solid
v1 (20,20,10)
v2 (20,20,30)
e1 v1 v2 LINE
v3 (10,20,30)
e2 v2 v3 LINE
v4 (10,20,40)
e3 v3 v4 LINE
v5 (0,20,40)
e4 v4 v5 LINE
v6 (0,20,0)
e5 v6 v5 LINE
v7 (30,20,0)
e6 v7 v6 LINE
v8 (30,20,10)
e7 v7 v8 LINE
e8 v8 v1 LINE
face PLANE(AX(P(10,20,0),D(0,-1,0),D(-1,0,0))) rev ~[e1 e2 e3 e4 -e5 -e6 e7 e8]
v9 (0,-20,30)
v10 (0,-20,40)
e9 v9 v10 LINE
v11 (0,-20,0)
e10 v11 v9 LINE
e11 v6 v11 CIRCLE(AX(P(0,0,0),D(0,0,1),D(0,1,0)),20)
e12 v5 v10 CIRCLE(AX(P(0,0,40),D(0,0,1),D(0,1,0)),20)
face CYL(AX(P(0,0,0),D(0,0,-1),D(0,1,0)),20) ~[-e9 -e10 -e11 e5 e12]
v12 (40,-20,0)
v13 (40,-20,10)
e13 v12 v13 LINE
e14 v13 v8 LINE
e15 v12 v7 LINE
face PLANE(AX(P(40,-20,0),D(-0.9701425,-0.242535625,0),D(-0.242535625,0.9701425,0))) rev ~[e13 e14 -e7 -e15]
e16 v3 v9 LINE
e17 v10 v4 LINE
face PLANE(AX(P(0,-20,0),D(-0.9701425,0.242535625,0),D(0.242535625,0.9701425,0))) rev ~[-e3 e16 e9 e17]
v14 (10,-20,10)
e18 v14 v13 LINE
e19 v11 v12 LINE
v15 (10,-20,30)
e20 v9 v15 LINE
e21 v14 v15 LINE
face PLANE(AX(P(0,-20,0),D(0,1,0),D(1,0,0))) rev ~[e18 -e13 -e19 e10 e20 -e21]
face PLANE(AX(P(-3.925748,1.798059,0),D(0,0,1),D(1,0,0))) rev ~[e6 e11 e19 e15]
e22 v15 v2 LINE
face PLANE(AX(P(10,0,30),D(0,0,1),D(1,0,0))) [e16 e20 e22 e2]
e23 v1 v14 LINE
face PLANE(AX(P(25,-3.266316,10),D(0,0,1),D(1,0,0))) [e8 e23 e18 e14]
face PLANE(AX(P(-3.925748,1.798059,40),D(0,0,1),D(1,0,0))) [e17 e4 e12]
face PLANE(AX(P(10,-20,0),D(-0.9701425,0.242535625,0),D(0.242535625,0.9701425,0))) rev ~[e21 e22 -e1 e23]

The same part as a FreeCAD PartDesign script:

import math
import FreeCAD as App
import Part
import Sketcher

V = App.Vector

doc = App.newDocument("Part")
body = doc.addObject("PartDesign::Body", "Body")

sketch1 = body.newObject("Sketcher::SketchObject", "Sketch")
sketch1.AttachmentSupport = (doc.getObject("XY_Plane"), [""])
sketch1.MapMode = "FlatFace"
sketch1.addGeometry([
    Part.LineSegment(V(20, 20, 0), V(10, -20, 0)),
    Part.LineSegment(V(10, -20, 0), V(40, -20, 0)),
    Part.LineSegment(V(40, -20, 0), V(30, 20, 0)),
    Part.LineSegment(V(30, 20, 0), V(20, 20, 0)),
], False)
sketch1.addConstraint([
    Sketcher.Constraint("Coincident", 0, 2, 1, 1),
    Sketcher.Constraint("Coincident", 1, 2, 2, 1),
    Sketcher.Constraint("Coincident", 2, 2, 3, 1),
    Sketcher.Constraint("Coincident", 3, 2, 0, 1),
    Sketcher.Constraint("Horizontal", 1),
    Sketcher.Constraint("Horizontal", 3),
    Sketcher.Constraint("Equal", 0, 2),
    Sketcher.Constraint("DistanceX", 1, 1, 1, 2, 30.0),
    Sketcher.Constraint("DistanceX", 3, 2, 3, 1, 10.0),
    Sketcher.Constraint("DistanceX", -1, 1, 0, 2, 10.0),
    Sketcher.Constraint("DistanceY", 0, 2, -1, 1, 20.0),
    Sketcher.Constraint("DistanceY", -1, 1, 2, 2, 20.0),
])
pad1 = body.newObject("PartDesign::Pad", "Pad")
pad1.Profile = sketch1
pad1.Length = 10

sketch2 = body.newObject("Sketcher::SketchObject", "Sketch001")
sketch2.AttachmentSupport = (doc.getObject("XY_Plane"), [""])
sketch2.MapMode = "FlatFace"
sketch2.addGeometry([
    Part.LineSegment(V(10, 20, 0), V(0, -20, 0)),
    Part.LineSegment(V(0, -20, 0), V(10, -20, 0)),
    Part.LineSegment(V(10, -20, 0), V(20, 20, 0)),
    Part.LineSegment(V(20, 20, 0), V(10, 20, 0)),
], False)
sketch2.addConstraint([
    Sketcher.Constraint("Coincident", 0, 2, 1, 1),
    Sketcher.Constraint("Coincident", 1, 2, 2, 1),
    Sketcher.Constraint("Coincident", 2, 2, 3, 1),
    Sketcher.Constraint("Coincident", 3, 2, 0, 1),
    Sketcher.Constraint("Horizontal", 1),
    Sketcher.Constraint("Horizontal", 3),
    Sketcher.Constraint("Symmetric", 1, 2, 3, 2, -1),
    Sketcher.Constraint("PointOnObject", 0, 2, -2),
    Sketcher.Constraint("Parallel", 0, 2),
    Sketcher.Constraint("DistanceX", 1, 1, 1, 2, 10.0),
    Sketcher.Constraint("DistanceY", 0, 2, -1, 1, 20.0),
])
pad2 = body.newObject("PartDesign::Pad", "Pad001")
pad2.Profile = sketch2
pad2.Length = 30

sketch3 = body.newObject("Sketcher::SketchObject", "Sketch002")
sketch3.AttachmentSupport = (doc.getObject("XY_Plane"), [""])
sketch3.MapMode = "FlatFace"
sketch3.addGeometry([
    Part.LineSegment(V(10, 20, 0), V(0, 20, 0)),
    Part.ArcOfCircle(Part.Circle(V(0, 0, 0), V(0, 0, 1), 20), math.radians(90), math.radians(270)),
    Part.LineSegment(V(0, -20, 0), V(10, 20, 0)),
], False)
sketch3.addConstraint([
    Sketcher.Constraint("Tangent", 0, 2, 1, 1),
    Sketcher.Constraint("Coincident", 1, 2, 2, 1),
    Sketcher.Constraint("Coincident", 2, 2, 0, 1),
    Sketcher.Constraint("Horizontal", 0),
    Sketcher.Constraint("Coincident", 1, 3, -1, 1),
    Sketcher.Constraint("PointOnObject", 1, 2, -2),
    Sketcher.Constraint("Radius", 1, 20.0),
    Sketcher.Constraint("DistanceX", 0, 2, 0, 1, 10.0),
])
pad3 = body.newObject("PartDesign::Pad", "Pad002")
pad3.Profile = sketch3
pad3.Length = 40

doc.recompute()
